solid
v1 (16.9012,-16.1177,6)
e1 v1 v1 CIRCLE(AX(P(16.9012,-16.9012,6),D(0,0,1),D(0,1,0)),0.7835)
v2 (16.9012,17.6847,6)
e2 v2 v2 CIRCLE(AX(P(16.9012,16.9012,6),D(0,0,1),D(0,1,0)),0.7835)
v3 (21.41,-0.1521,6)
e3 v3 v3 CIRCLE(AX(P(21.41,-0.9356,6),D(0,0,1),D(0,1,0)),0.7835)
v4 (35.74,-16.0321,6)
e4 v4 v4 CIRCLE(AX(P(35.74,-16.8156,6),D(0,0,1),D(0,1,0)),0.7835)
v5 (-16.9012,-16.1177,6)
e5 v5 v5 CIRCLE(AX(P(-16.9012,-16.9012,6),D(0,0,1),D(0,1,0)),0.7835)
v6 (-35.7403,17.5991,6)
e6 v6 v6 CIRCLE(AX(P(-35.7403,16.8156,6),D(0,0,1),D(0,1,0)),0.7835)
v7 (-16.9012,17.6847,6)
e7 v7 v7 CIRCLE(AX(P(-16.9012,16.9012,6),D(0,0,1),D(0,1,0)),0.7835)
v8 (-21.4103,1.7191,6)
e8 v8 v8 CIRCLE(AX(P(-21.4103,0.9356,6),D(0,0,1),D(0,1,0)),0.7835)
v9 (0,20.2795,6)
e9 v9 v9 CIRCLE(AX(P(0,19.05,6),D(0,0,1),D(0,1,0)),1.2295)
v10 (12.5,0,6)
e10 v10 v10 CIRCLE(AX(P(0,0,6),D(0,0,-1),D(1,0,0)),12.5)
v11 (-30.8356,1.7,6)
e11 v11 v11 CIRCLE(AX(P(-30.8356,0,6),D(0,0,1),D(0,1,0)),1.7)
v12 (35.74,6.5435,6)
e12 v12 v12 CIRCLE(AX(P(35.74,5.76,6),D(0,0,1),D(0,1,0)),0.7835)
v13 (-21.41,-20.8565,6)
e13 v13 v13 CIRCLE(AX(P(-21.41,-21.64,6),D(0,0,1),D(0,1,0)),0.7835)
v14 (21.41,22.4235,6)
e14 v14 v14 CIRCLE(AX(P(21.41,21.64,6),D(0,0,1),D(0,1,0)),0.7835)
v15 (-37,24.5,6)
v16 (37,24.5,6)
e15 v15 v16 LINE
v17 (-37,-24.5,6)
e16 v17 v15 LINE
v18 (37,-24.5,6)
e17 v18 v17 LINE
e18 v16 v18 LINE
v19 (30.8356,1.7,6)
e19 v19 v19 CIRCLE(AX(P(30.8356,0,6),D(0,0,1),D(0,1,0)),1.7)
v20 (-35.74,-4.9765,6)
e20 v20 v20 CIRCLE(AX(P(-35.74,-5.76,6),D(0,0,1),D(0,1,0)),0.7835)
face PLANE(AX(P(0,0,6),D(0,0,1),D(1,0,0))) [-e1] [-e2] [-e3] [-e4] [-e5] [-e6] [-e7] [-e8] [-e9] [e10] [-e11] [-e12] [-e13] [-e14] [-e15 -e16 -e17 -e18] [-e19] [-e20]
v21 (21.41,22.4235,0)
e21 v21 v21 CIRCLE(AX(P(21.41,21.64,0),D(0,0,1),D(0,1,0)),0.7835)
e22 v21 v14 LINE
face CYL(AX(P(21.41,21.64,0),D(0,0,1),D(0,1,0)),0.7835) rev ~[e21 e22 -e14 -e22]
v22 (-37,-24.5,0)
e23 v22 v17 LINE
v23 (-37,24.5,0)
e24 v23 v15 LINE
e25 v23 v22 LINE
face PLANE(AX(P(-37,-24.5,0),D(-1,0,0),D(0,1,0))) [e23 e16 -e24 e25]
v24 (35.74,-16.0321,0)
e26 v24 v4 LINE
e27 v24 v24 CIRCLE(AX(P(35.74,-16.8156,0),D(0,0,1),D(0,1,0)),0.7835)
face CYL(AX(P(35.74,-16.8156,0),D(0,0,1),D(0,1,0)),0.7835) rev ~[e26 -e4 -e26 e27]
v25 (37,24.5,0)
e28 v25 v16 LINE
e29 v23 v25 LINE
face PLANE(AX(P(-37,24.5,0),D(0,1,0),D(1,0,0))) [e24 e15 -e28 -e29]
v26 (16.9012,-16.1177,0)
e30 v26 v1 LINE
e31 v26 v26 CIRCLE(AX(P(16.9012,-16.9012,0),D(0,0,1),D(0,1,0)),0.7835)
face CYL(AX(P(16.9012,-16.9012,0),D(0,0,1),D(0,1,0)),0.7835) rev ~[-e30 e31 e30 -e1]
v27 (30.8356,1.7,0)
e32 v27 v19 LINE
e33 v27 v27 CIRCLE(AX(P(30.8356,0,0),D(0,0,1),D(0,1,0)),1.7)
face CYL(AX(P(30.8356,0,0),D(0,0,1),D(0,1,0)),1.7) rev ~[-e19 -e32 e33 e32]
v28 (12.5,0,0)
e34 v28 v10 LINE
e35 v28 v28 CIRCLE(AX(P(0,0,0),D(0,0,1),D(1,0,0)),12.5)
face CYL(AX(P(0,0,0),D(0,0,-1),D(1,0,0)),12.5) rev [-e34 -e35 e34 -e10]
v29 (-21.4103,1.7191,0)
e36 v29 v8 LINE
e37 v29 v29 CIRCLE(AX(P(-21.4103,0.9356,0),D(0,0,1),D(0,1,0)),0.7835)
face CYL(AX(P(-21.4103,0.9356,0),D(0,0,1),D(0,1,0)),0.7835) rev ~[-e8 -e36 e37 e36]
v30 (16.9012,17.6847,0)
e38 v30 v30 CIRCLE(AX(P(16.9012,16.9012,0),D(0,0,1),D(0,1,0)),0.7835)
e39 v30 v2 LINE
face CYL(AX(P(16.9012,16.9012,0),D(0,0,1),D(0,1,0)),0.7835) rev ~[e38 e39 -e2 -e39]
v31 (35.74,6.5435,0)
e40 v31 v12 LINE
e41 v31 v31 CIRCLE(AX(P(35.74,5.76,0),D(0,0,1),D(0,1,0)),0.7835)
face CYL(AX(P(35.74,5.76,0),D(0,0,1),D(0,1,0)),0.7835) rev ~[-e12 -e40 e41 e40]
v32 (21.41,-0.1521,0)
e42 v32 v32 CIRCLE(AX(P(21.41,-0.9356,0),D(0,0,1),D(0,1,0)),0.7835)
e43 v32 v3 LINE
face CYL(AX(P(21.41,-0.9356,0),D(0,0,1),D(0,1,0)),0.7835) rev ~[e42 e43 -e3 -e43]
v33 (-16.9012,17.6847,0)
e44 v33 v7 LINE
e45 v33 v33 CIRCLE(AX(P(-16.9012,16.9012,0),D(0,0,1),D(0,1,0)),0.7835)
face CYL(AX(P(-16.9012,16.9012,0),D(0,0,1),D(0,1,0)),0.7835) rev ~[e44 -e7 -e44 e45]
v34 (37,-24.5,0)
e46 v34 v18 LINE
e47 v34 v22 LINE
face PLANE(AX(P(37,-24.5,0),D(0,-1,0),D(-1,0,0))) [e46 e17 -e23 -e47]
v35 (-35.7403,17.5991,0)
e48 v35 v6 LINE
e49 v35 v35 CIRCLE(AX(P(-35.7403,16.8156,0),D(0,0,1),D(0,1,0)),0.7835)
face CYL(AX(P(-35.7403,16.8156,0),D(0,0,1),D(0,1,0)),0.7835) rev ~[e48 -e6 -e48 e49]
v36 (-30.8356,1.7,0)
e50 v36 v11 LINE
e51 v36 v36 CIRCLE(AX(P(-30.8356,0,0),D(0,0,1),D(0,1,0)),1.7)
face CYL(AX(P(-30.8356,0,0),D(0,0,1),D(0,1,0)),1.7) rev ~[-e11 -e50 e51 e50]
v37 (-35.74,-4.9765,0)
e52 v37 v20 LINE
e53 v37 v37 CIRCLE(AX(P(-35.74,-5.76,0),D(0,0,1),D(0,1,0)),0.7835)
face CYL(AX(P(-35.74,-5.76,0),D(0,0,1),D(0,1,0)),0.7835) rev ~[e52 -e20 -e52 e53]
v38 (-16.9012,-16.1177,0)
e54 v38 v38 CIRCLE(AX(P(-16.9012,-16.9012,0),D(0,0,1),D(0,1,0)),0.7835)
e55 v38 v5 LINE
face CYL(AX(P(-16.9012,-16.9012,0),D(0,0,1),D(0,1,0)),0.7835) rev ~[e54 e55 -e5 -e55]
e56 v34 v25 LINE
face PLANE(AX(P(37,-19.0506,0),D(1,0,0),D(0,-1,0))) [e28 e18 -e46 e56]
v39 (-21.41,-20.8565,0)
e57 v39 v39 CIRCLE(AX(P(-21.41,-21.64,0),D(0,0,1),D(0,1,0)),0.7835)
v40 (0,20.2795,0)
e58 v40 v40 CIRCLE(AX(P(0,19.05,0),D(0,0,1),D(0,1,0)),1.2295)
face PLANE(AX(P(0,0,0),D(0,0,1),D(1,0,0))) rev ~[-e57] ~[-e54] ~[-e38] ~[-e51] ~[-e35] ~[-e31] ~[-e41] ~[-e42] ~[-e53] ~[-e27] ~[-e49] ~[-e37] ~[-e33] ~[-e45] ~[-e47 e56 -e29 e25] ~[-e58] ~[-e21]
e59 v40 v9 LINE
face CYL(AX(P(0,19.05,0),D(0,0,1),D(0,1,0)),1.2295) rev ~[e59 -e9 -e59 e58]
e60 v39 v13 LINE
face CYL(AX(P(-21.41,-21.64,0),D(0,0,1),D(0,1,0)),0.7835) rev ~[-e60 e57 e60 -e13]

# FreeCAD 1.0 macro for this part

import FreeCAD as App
import Part
import Sketcher

V = App.Vector
Q = App.Units.Quantity


def add_polygon(sketch, points):
    """Adds a closed chain of lines whose ends are joined by coincident constraints."""
    first, n = sketch.GeometryCount, len(points)
    for a, b in zip(points, points[1:] + points[:1]):
        sketch.addGeometry(Part.LineSegment(App.Vector(*a, 0), App.Vector(*b, 0)), False)
    for i in range(n):
        sketch.addConstraint(Sketcher.Constraint("Coincident", first + i, 2, first + (i + 1) % n, 1))

doc = App.newDocument("Part")
body = doc.addObject("PartDesign::Body", "Body")

# Sketch on XY plane
sketch1 = doc.addObject("Sketcher::SketchObject", "Sketch")
body.addObject(sketch1)
sketch1.AttachmentSupport = (doc.XY_Plane, [""])
sketch1.MapMode = "FlatFace"
add_polygon(sketch1, [(-37, -24), (37, -24), (37, 24), (-37, 24)])  # lines 0-3
sketch1.addGeometry(Part.Circle(V(0, 0, 0), V(0, 0, 1), 12), False)  # 4
sketch1.addConstraint([
    Sketcher.Constraint("Horizontal", 0),
    Sketcher.Constraint("Vertical", 1),
    Sketcher.Constraint("Horizontal", 2),
    Sketcher.Constraint("Vertical", 3),
    Sketcher.Constraint("Coincident", 4, 3, -1, 1),
    Sketcher.Constraint("Symmetric", 0, 2, 2, 2, -1, 1),
    Sketcher.Constraint("Diameter", 4, Q("25 mm")),
    Sketcher.Constraint("DistanceX", 0, 1, 0, 2, Q("74 mm")),
    Sketcher.Constraint("DistanceY", 1, 1, 1, 2, Q("49 mm")),
])
pad1 = doc.addObject("PartDesign::Pad", "Pad")
body.addObject(pad1)
pad1.Profile = sketch1
pad1.Length = 6

# Sketch on XY plane
sketch2 = doc.addObject("Sketcher::SketchObject", "Sketch001")
body.addObject(sketch2)
sketch2.AttachmentSupport = (doc.XY_Plane, [""])
sketch2.MapMode = "FlatFace"
sketch2.addGeometry([
    Part.Circle(V(-16.9, -16.9, 0), V(0, 0, 1), 0.8),
    Part.Circle(V(16.9, -16.9, 0), V(0, 0, 1), 0.8),
    Part.Circle(V(16.9, 16.9, 0), V(0, 0, 1), 0.8),
    Part.Circle(V(-16.9, 16.9, 0), V(0, 0, 1), 0.8),
], False)
sketch2.addConstraint([
    Sketcher.Constraint("Equal", 0, 1),
    Sketcher.Constraint("Equal", 1, 2),
    Sketcher.Constraint("Equal", 2, 3),
    Sketcher.Constraint("Symmetric", 0, 3, 2, 3, -1, 1),
    Sketcher.Constraint("Symmetric", 1, 3, 3, 3, -1, 1),
    Sketcher.Constraint("Symmetric", 0, 3, 1, 3, -2),
    Sketcher.Constraint("Diameter", 0, Q("1.567 mm")),
    Sketcher.Constraint("DistanceX", 0, 3, -1, 1, Q("16.9012 mm")),
    Sketcher.Constraint("DistanceY", 0, 3, -1, 1, Q("16.9012 mm")),
])
doc.recompute()
hole = doc.addObject("PartDesign::Hole", "Hole")
body.addObject(hole)
hole.Profile = sketch2
hole.ThreadType = "None"
hole.Diameter = 1.567
hole.DepthType = "ThroughAll"
hole.Reversed = True

# Sketch on XY plane
sketch3 = doc.addObject("Sketcher::SketchObject", "Sketch002")
body.addObject(sketch3)
sketch3.AttachmentSupport = (doc.XY_Plane, [""])
sketch3.MapMode = "FlatFace"
sketch3.addGeometry([
    Part.Circle(V(-30.8, 0, 0), V(0, 0, 1), 1.7),
    Part.Circle(V(30.8, 0, 0), V(0, 0, 1), 1.7),
], False)
sketch3.addConstraint([
    Sketcher.Constraint("Equal", 0, 1),
    Sketcher.Constraint("Symmetric", 0, 3, 1, 3, -1, 1),
    Sketcher.Constraint("PointOnObject", 0, 3, -1),
    Sketcher.Constraint("Diameter", 0, Q("3.4 mm")),
    Sketcher.Constraint("DistanceX", 0, 3, -1, 1, Q("30.8356 mm")),
])
doc.recompute()
hole2 = doc.addObject("PartDesign::Hole", "Hole001")
body.addObject(hole2)
hole2.Profile = sketch3
hole2.ThreadType = "None"
hole2.Diameter = 3.4
hole2.DepthType = "ThroughAll"
hole2.Reversed = True

# Sketch on XY plane
sketch4 = doc.addObject("Sketcher::SketchObject", "Sketch003")
body.addObject(sketch4)
sketch4.AttachmentSupport = (doc.XY_Plane, [""])
sketch4.MapMode = "FlatFace"
sketch4.addGeometry([
    Part.Circle(V(-35.7, 16.8, 0), V(0, 0, 1), 0.8),  # 0
    Part.Circle(V(-21.4, 0.9, 0), V(0, 0, 1), 0.8),  # 1
    Part.Circle(V(-35.7, -5.8, 0), V(0, 0, 1), 0.8),  # 2
    Part.Circle(V(-21.4, -21.6, 0), V(0, 0, 1), 0.8),  # 3
    Part.Circle(V(35.7, -16.8, 0), V(0, 0, 1), 0.8),  # 4
    Part.Circle(V(21.4, -0.9, 0), V(0, 0, 1), 0.8),  # 5
    Part.Circle(V(35.7, 5.8, 0), V(0, 0, 1), 0.8),  # 6
    Part.Circle(V(21.4, 21.6, 0), V(0, 0, 1), 0.8),  # 7
], False)
sketch4.addConstraint([
    Sketcher.Constraint("Equal", 0, 1),
    Sketcher.Constraint("Equal", 1, 2),
    Sketcher.Constraint("Equal", 2, 3),
    Sketcher.Constraint("Equal", 3, 4),
    Sketcher.Constraint("Equal", 4, 5),
    Sketcher.Constraint("Equal", 5, 6),
    Sketcher.Constraint("Equal", 6, 7),
    Sketcher.Constraint("Symmetric", 0, 3, 4, 3, -1, 1),
    Sketcher.Constraint("Symmetric", 1, 3, 5, 3, -1, 1),
    Sketcher.Constraint("Symmetric", 2, 3, 6, 3, -1, 1),
    Sketcher.Constraint("Symmetric", 3, 3, 7, 3, -1, 1),
    Sketcher.Constraint("Vertical", 4, 3, 6, 3),
    Sketcher.Constraint("Vertical", 5, 3, 7, 3),
    Sketcher.Constraint("Diameter", 0, Q("1.567 mm")),
    Sketcher.Constraint("DistanceY", 3, 3, 6, 3, Q("27.4 mm")),
    Sketcher.Constraint("DistanceX", 2, 3, -1, 1, Q("35.74 mm")),
    Sketcher.Constraint("DistanceY", 2, 3, -1, 1, Q("5.76 mm")),
    Sketcher.Constraint("DistanceX", 3, 3, -1, 1, Q("21.41 mm")),
    Sketcher.Constraint("DistanceY", 1, 3, 0, 3, Q("15.88 mm")),
    Sketcher.Constraint("DistanceY", -1, 1, 0, 3, Q("16.8156 mm")),
])
doc.recompute()
hole3 = doc.addObject("PartDesign::Hole", "Hole002")
body.addObject(hole3)
hole3.Profile = sketch4
hole3.ThreadType = "None"
hole3.Diameter = 1.567
hole3.DepthType = "ThroughAll"
hole3.Reversed = True

# Sketch on XY plane
sketch5 = doc.addObject("Sketcher::SketchObject", "Sketch004")
body.addObject(sketch5)
sketch5.AttachmentSupport = (doc.XY_Plane, [""])
sketch5.MapMode = "FlatFace"
sketch5.addGeometry(Part.Circle(V(0, 19.1, 0), V(0, 0, 1), 1.2), False)
sketch5.addConstraint([
    Sketcher.Constraint("PointOnObject", 0, 3, -2),
    Sketcher.Constraint("Diameter", 0, Q("2.459 mm")),
    Sketcher.Constraint("DistanceY", -1, 1, 0, 3, Q("19.05 mm")),
])
doc.recompute()
hole4 = doc.addObject("PartDesign::Hole", "Hole003")
body.addObject(hole4)
hole4.Profile = sketch5
hole4.ThreadType = "None"
hole4.Diameter = 2.459
hole4.DepthType = "ThroughAll"
hole4.Reversed = True

doc.recompute()
